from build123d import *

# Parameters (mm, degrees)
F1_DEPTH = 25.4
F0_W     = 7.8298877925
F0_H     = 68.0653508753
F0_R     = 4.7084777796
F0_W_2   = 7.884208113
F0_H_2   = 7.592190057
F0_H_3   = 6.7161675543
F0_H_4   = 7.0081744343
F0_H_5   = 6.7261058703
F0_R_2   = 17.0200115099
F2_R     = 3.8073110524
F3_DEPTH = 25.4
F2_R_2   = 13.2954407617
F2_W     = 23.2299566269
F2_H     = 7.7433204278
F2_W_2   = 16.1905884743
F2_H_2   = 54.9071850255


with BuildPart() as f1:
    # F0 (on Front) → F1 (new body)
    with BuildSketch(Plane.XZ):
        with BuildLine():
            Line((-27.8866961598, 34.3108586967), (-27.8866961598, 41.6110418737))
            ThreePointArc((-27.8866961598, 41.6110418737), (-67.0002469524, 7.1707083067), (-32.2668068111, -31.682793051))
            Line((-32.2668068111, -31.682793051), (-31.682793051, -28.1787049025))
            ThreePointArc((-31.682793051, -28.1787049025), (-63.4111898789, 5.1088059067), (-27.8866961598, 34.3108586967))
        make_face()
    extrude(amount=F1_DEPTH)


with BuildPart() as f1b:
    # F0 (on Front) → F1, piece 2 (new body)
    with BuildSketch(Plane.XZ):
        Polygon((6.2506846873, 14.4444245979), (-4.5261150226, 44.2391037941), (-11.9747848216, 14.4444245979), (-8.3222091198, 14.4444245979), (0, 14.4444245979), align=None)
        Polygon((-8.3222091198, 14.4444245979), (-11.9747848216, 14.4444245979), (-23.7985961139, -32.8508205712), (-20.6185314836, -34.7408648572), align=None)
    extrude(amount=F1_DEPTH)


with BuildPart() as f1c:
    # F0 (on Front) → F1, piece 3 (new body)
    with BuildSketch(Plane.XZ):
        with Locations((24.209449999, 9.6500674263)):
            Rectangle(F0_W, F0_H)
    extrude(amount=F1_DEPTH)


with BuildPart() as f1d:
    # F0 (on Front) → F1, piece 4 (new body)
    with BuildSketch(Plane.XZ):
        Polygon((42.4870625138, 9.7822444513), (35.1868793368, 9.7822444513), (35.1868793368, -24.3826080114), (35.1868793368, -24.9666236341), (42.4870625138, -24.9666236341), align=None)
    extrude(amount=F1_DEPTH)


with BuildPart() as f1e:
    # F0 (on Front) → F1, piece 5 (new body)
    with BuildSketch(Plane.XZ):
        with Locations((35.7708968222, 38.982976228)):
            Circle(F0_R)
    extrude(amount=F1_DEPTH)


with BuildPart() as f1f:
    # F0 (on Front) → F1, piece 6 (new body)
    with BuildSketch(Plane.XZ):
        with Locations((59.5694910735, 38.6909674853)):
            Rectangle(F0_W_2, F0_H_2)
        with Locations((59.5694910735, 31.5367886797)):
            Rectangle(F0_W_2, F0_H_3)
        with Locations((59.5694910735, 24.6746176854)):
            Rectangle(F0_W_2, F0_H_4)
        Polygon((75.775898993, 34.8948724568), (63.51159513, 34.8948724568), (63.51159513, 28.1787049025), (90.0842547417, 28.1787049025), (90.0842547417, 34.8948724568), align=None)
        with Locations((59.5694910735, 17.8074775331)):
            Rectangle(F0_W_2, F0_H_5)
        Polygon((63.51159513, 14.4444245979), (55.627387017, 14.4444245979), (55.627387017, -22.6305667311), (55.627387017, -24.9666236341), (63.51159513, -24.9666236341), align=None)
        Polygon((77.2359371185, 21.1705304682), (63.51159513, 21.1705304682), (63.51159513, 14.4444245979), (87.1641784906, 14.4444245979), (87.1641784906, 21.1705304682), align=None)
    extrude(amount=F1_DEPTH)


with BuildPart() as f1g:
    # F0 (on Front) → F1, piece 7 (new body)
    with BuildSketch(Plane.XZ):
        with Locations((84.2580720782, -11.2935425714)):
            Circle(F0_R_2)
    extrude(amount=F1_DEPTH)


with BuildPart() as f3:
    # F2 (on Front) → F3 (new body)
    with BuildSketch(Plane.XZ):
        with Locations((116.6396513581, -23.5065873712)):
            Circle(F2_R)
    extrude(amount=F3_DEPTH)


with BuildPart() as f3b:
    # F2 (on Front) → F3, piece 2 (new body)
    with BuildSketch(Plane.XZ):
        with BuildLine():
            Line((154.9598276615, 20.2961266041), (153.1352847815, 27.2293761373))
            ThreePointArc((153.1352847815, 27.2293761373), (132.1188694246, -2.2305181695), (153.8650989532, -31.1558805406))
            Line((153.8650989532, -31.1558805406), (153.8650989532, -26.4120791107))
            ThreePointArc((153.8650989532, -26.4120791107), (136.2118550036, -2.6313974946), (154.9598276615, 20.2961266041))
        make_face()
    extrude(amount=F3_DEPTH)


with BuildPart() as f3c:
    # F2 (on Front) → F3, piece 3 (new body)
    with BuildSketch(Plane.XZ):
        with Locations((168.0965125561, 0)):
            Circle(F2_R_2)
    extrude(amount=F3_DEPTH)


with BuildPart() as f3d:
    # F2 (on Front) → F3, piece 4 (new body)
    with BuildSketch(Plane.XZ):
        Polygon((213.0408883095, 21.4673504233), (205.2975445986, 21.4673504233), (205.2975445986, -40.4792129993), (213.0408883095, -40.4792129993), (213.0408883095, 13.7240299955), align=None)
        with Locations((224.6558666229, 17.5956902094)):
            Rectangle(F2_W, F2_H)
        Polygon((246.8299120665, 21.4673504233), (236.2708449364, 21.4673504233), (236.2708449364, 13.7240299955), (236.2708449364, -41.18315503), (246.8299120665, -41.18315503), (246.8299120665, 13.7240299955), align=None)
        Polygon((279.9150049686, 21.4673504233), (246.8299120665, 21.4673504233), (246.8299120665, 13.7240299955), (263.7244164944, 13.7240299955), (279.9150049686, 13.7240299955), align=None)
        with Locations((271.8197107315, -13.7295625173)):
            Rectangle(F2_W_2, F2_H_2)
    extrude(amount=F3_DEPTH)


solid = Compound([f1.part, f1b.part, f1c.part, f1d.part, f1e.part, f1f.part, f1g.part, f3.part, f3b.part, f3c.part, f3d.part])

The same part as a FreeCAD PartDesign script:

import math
import FreeCAD as App
import Part
import Sketcher
from FreeCAD import Vector
Q = App.Units.Quantity

doc = App.newDocument("Part")
params = doc.addObject("Spreadsheet::Sheet", "Params")
for row, (alias, value) in enumerate([
    ("pad1_length", "1 in"),
    ("pad2_length", "1 in"),
    ("pad3_length", "1 in"),
    ("pad4_length", "1 in"),
    ("pad5_length", "1 in"),
    ("pad6_length", "1 in"),
    ("pad7_length", "1 in"),
    ("pad8_length", "1 in"),
    ("pad9_length", "1 in"),
    ("pad10_length", "1 in"),
    ("pad11_length", "1 in"),
], start=1):
    params.set(f"A{row}", alias)
    params.set(f"B{row}", "=" + value)
    params.setAlias(f"B{row}", alias)

body = doc.addObject("PartDesign::Body", "Body")

sketch1 = doc.addObject("Sketcher::SketchObject", "Sketch")
body.addObject(sketch1)
sketch1.AttachmentSupport = (doc.XZ_Plane, [""])
sketch1.MapMode = "FlatFace"
sketch1.addGeometry([
    Part.LineSegment(Vector(-27.886696, 34.310859, 0), Vector(-27.886696, 41.611042, 0)),
    Part.ArcOfCircle(Part.Circle(Vector(-30.352294, 4.980591, 0), Vector(0, 0, 1), 36.713337), math.radians(86.149227), math.radians(267.010806)),
    Part.LineSegment(Vector(-32.266807, -31.682793, 0), Vector(-31.682793, -28.178705, 0)),
    Part.ArcOfCircle(Part.Circle(Vector(-32.082065, 3.205634, 0), Vector(0, 0, 1), 31.386878), math.radians(82.318493), math.radians(270.728878)),
], False)
sketch1.addConstraint([
    Sketcher.Constraint("Coincident", 0, 2, 1, 1),
    Sketcher.Constraint("Coincident", 1, 2, 2, 1),
    Sketcher.Constraint("Coincident", 2, 2, 3, 2),
    Sketcher.Constraint("Coincident", 3, 1, 0, 1),
    Sketcher.Constraint("Vertical", 0),
    Sketcher.Constraint("Radius", 3, Q("31.386878 mm")),
    Sketcher.Constraint("Radius", 1, Q("36.713337 mm")),
    Sketcher.Constraint("DistanceX", 2, 2, 1, 3, Q("1.330499 mm")),
    Sketcher.Constraint("DistanceY", 0, 1, 0, 2, Q("7.300183 mm")),
    Sketcher.Constraint("DistanceY", -1, 1, 1, 3, Q("4.980591 mm")),
    Sketcher.Constraint("DistanceY", -1, 1, 0, 2, Q("41.611042 mm")),
    Sketcher.Constraint("DistanceX", 3, 3, 1, 3, Q("1.729771 mm")),
    Sketcher.Constraint("DistanceX", 1, 2, 3, 3, Q("0.184742 mm")),
    Sketcher.Constraint("DistanceX", 1, 3, -1, 1, Q("30.352294 mm")),
])
pad1 = doc.addObject("PartDesign::Pad", "Pad")
body.addObject(pad1)
pad1.Profile = sketch1
pad1.setExpression("Length", "Params.pad1_length")
body2 = doc.addObject("PartDesign::Body", "Body001")

sketch2 = doc.addObject("Sketcher::SketchObject", "Sketch001")
body2.addObject(sketch2)
sketch2.AttachmentSupport = (doc.getObject("XZ_Plane001"), [""])
sketch2.MapMode = "FlatFace"
sketch2.addGeometry([
    Part.LineSegment(Vector(6.250685, 14.444425, 0), Vector(-4.526115, 44.239104, 0)),
    Part.LineSegment(Vector(-4.526115, 44.239104, 0), Vector(-11.974785, 14.444425, 0)),
    Part.LineSegment(Vector(-11.974785, 14.444425, 0), Vector(-23.798596, -32.850821, 0)),
    Part.LineSegment(Vector(-23.798596, -32.850821, 0), Vector(-20.618531, -34.740865, 0)),
    Part.LineSegment(Vector(-20.618531, -34.740865, 0), Vector(-8.322209, 14.444425, 0)),
    Part.LineSegment(Vector(-8.322209, 14.444425, 0), Vector(6.250685, 14.444425, 0)),
], False)
sketch2.addConstraint([
    Sketcher.Constraint("Coincident", 0, 2, 1, 1),
    Sketcher.Constraint("Coincident", 1, 2, 2, 1),
    Sketcher.Constraint("Coincident", 2, 2, 3, 1),
    Sketcher.Constraint("Coincident", 3, 2, 4, 1),
    Sketcher.Constraint("Coincident", 4, 2, 5, 1),
    Sketcher.Constraint("Coincident", 5, 2, 0, 1),
    Sketcher.Constraint("Horizontal", 5),
    Sketcher.Constraint("Parallel", 1, 2),
    Sketcher.Constraint("Parallel", 2, 4),
    Sketcher.Constraint("Horizontal", 1, 2, 4, 2),
    Sketcher.Constraint("DistanceX", 0, 2, 5, 2, Q("10.7768 mm")),
    Sketcher.Constraint("DistanceX", 5, 1, 5, 2, Q("14.572894 mm")),
    Sketcher.Constraint("DistanceY", 2, 2, -1, 1, Q("32.850821 mm")),
    Sketcher.Constraint("DistanceX", 3, 2, -1, 1, Q("20.618531 mm")),
    Sketcher.Constraint("DistanceX", 4, 2, -1, 1, Q("8.322209 mm")),
    Sketcher.Constraint("DistanceX", 1, 2, 0, 2, Q("7.44867 mm")),
    Sketcher.Constraint("DistanceY", 1, 2, 0, 2, Q("29.794679 mm")),
    Sketcher.Constraint("DistanceX", 2, 2, 1, 2, Q("11.823811 mm")),
])
pad2 = doc.addObject("PartDesign::Pad", "Pad001")
body2.addObject(pad2)
pad2.Profile = sketch2
pad2.setExpression("Length", "Params.pad2_length")
body3 = doc.addObject("PartDesign::Body", "Body002")

sketch3 = doc.addObject("Sketcher::SketchObject", "Sketch002")
body3.addObject(sketch3)
sketch3.AttachmentSupport = (doc.getObject("XZ_Plane002"), [""])
sketch3.MapMode = "FlatFace"
sketch3.addGeometry([
    Part.LineSegment(Vector(20.294506, 43.682743, 0), Vector(20.294506, -24.382608, 0)),
    Part.LineSegment(Vector(20.294506, -24.382608, 0), Vector(28.124394, -24.382608, 0)),
    Part.LineSegment(Vector(28.124394, -24.382608, 0), Vector(28.124394, 43.682743, 0)),
    Part.LineSegment(Vector(28.124394, 43.682743, 0), Vector(20.294506, 43.682743, 0)),
], False)
sketch3.addConstraint([
    Sketcher.Constraint("Coincident", 0, 2, 1, 1),
    Sketcher.Constraint("Coincident", 1, 2, 2, 1),
    Sketcher.Constraint("Coincident", 2, 2, 3, 1),
    Sketcher.Constraint("Coincident", 3, 2, 0, 1),
    Sketcher.Constraint("Vertical", 0),
    Sketcher.Constraint("Horizontal", 1),
    Sketcher.Constraint("Vertical", 2),
    Sketcher.Constraint("Horizontal", 3),
    Sketcher.Constraint("DistanceY", 0, 2, 0, 1, Q("68.065351 mm")),
    Sketcher.Constraint("DistanceX", 1, 1, 1, 2, Q("7.829888 mm")),
    Sketcher.Constraint("DistanceY", 0, 2, -1, 1, Q("24.382608 mm")),
    Sketcher.Constraint("DistanceX", -1, 1, 0, 2, Q("20.294506 mm")),
])
pad3 = doc.addObject("PartDesign::Pad", "Pad002")
body3.addObject(pad3)
pad3.Profile = sketch3
pad3.setExpression("Length", "Params.pad3_length")
body4 = doc.addObject("PartDesign::Body", "Body003")

sketch4 = doc.addObject("Sketcher::SketchObject", "Sketch003")
body4.addObject(sketch4)
sketch4.AttachmentSupport = (doc.getObject("XZ_Plane003"), [""])
sketch4.MapMode = "FlatFace"
sketch4.addGeometry([
    Part.LineSegment(Vector(42.487063, 9.782244, 0), Vector(35.186879, 9.782244, 0)),
    Part.LineSegment(Vector(35.186879, 9.782244, 0), Vector(35.186879, -24.966624, 0)),
    Part.LineSegment(Vector(35.186879, -24.966624, 0), Vector(42.487063, -24.966624, 0)),
    Part.LineSegment(Vector(42.487063, -24.966624, 0), Vector(42.487063, 9.782244, 0)),
], False)
sketch4.addConstraint([
    Sketcher.Constraint("Coincident", 0, 2, 1, 1),
    Sketcher.Constraint("Coincident", 1, 2, 2, 1),
    Sketcher.Constraint("Coincident", 2, 2, 3, 1),
    Sketcher.Constraint("Coincident", 3, 2, 0, 1),
    Sketcher.Constraint("Horizontal", 0),
    Sketcher.Constraint("Vertical", 1),
    Sketcher.Constraint("Horizontal", 2),
    Sketcher.Constraint("Vertical", 3),
    Sketcher.Constraint("DistanceY", 1, 2, 1, 1, Q("34.748868 mm")),
    Sketcher.Constraint("DistanceX", 0, 2, 0, 1, Q("7.300183 mm")),
    Sketcher.Constraint("DistanceX", -1, 1, 0, 2, Q("35.186879 mm")),
    Sketcher.Constraint("DistanceY", -1, 1, 0, 2, Q("9.782244 mm")),
])
pad4 = doc.addObject("PartDesign::Pad", "Pad003")
body4.addObject(pad4)
pad4.Profile = sketch4
pad4.setExpression("Length", "Params.pad4_length")
body5 = doc.addObject("PartDesign::Body", "Body004")

sketch5 = doc.addObject("Sketcher::SketchObject", "Sketch004")
body5.addObject(sketch5)
sketch5.AttachmentSupport = (doc.getObject("XZ_Plane004"), [""])
sketch5.MapMode = "FlatFace"
sketch5.addGeometry(Part.Circle(Vector(35.770897, 38.982976, 0), Vector(0, 0, 1), 4.708478), False)
sketch5.addConstraint([
    Sketcher.Constraint("Diameter", 0, Q("9.416956 mm")),
    Sketcher.Constraint("DistanceX", -1, 1, 0, 3, Q("35.770897 mm")),
    Sketcher.Constraint("DistanceY", -1, 1, 0, 3, Q("38.982976 mm")),
])
pad5 = doc.addObject("PartDesign::Pad", "Pad004")
body5.addObject(pad5)
pad5.Profile = sketch5
pad5.setExpression("Length", "Params.pad5_length")
body6 = doc.addObject("PartDesign::Body", "Body005")

sketch6 = doc.addObject("Sketcher::SketchObject", "Sketch005")
body6.addObject(sketch6)
sketch6.AttachmentSupport = (doc.getObject("XZ_Plane005"), [""])
sketch6.MapMode = "FlatFace"
sketch6.addGeometry([
    Part.LineSegment(Vector(55.627387, 42.487063, 0), Vector(55.627387, -24.966624, 0)),
    Part.LineSegment(Vector(55.627387, -24.966624, 0), Vector(63.511595, -24.966624, 0)),
    Part.LineSegment(Vector(63.511595, -24.966624, 0), Vector(63.511595, 14.444425, 0)),
    Part.LineSegment(Vector(63.511595, 14.444425, 0), Vector(87.164178, 14.444425, 0)),
    Part.LineSegment(Vector(87.164178, 14.444425, 0), Vector(87.164178, 21.17053, 0)),
    Part.LineSegment(Vector(87.164178, 21.17053, 0), Vector(63.511595, 21.17053, 0)),
    Part.LineSegment(Vector(63.511595, 21.17053, 0), Vector(63.511595, 28.178705, 0)),
    Part.LineSegment(Vector(63.511595, 28.178705, 0), Vector(90.084255, 28.178705, 0)),
    Part.LineSegment(Vector(90.084255, 28.178705, 0), Vector(90.084255, 34.894872, 0)),
    Part.LineSegment(Vector(90.084255, 34.894872, 0), Vector(63.511595, 34.894872, 0)),
    Part.LineSegment(Vector(63.511595, 34.894872, 0), Vector(63.511595, 42.487063, 0)),
    Part.LineSegment(Vector(63.511595, 42.487063, 0), Vector(55.627387, 42.487063, 0)),
], False)
sketch6.addConstraint([
    Sketcher.Constraint("Coincident", 0, 2, 1, 1),
    Sketcher.Constraint("Coincident", 1, 2, 2, 1),
    Sketcher.Constraint("Coincident", 2, 2, 3, 1),
    Sketcher.Constraint("Coincident", 3, 2, 4, 1),
    Sketcher.Constraint("Coincident", 4, 2, 5, 1),
    Sketcher.Constraint("Coincident", 5, 2, 6, 1),
    Sketcher.Constraint("Coincident", 6, 2, 7, 1),
    Sketcher.Constraint("Coincident", 7, 2, 8, 1),
    Sketcher.Constraint("Coincident", 8, 2, 9, 1),
    Sketcher.Constraint("Coincident", 9, 2, 10, 1),
    Sketcher.Constraint("Coincident", 10, 2, 11, 1),
    Sketcher.Constraint("Coincident", 11, 2, 0, 1),
    Sketcher.Constraint("Vertical", 0),
    Sketcher.Constraint("Horizontal", 1),
    Sketcher.Constraint("Vertical", 2),
    Sketcher.Constraint("Horizontal", 3),
    Sketcher.Constraint("Vertical", 4),
    Sketcher.Constraint("Horizontal", 5),
    Sketcher.Constraint("Vertical", 6),
    Sketcher.Constraint("Horizontal", 7),
    Sketcher.Constraint("Vertical", 8),
    Sketcher.Constraint("Horizontal", 9),
    Sketcher.Constraint("Vertical", 10),
    Sketcher.Constraint("Horizontal", 11),
    Sketcher.Constraint("Vertical", 2, 2, 5, 2),
    Sketcher.Constraint("Vertical", 6, 2, 9, 2),
    Sketcher.Constraint("DistanceX", 1, 1, 1, 2, Q("7.884208 mm")),
    Sketcher.Constraint("DistanceX", 7, 1, 7, 2, Q("26.57266 mm")),
    Sketcher.Constraint("DistanceY", 2, 1, 2, 2, Q("39.411048 mm")),
    Sketcher.Constraint("DistanceY", 10, 1, 10, 2, Q("7.59219 mm")),
    Sketcher.Constraint("DistanceX", 3, 1, 3, 2, Q("23.652583 mm")),
    Sketcher.Constraint("DistanceY", 0, 2, 0, 1, Q("67.453686 mm")),
    Sketcher.Constraint("DistanceY", 4, 1, 4, 2, Q("6.726106 mm")),
    Sketcher.Constraint("DistanceY", 6, 1, 6, 2, Q("7.008174 mm")),
    Sketcher.Constraint("DistanceX", -1, 1, 3, 2, Q("87.164178 mm")),
    Sketcher.Constraint("DistanceY", -1, 1, 4, 2, Q("21.17053 mm")),
])
pad6 = doc.addObject("PartDesign::Pad", "Pad005")
body6.addObject(pad6)
pad6.Profile = sketch6
pad6.setExpression("Length", "Params.pad6_length")
body7 = doc.addObject("PartDesign::Body", "Body006")

sketch7 = doc.addObject("Sketcher::SketchObject", "Sketch006")
body7.addObject(sketch7)
sketch7.AttachmentSupport = (doc.getObject("XZ_Plane006"), [""])
sketch7.MapMode = "FlatFace"
sketch7.addGeometry(Part.Circle(Vector(84.258072, -11.293543, 0), Vector(0, 0, 1), 17.020012), False)
sketch7.addConstraint([
    Sketcher.Constraint("Diameter", 0, Q("34.040023 mm")),
    Sketcher.Constraint("DistanceX", -1, 1, 0, 3, Q("84.258072 mm")),
    Sketcher.Constraint("DistanceY", 0, 3, -1, 1, Q("11.293543 mm")),
])
pad7 = doc.addObject("PartDesign::Pad", "Pad006")
body7.addObject(pad7)
pad7.Profile = sketch7
pad7.setExpression("Length", "Params.pad7_length")
body8 = doc.addObject("PartDesign::Body", "Body007")

sketch8 = doc.addObject("Sketcher::SketchObject", "Sketch007")
body8.addObject(sketch8)
sketch8.AttachmentSupport = (doc.getObject("XZ_Plane007"), [""])
sketch8.MapMode = "FlatFace"
sketch8.addGeometry(Part.Circle(Vector(116.639651, -23.506587, 0), Vector(0, 0, 1), 3.807311), False)
sketch8.addConstraint([
    Sketcher.Constraint("Diameter", 0, Q("7.614622 mm")),
    Sketcher.Constraint("DistanceX", -1, 1, 0, 3, Q("116.639651 mm")),
    Sketcher.Constraint("DistanceY", 0, 3, -1, 1, Q("23.506587 mm")),
])
pad8 = doc.addObject("PartDesign::Pad", "Pad007")
body8.addObject(pad8)
pad8.Profile = sketch8
pad8.setExpression("Length", "Params.pad8_length")
body9 = doc.addObject("PartDesign::Body", "Body008")

sketch9 = doc.addObject("Sketcher::SketchObject", "Sketch008")
body9.addObject(sketch9)
sketch9.AttachmentSupport = (doc.getObject("XZ_Plane008"), [""])
sketch9.MapMode = "FlatFace"
sketch9.addGeometry([
    Part.LineSegment(Vector(154.959828, 20.296127, 0), Vector(153.135285, 27.229376, 0)),
    Part.ArcOfCircle(Part.Circle(Vector(162.738362, -1.847775, 0), Vector(0, 0, 1), 30.621885), math.radians(108.276425), math.radians(253.155892)),
    Part.LineSegment(Vector(153.865099, -31.155881, 0), Vector(153.865099, -26.412079, 0)),
    Part.ArcOfCircle(Part.Circle(Vector(160.295563, -3.195862, 0), Vector(0, 0, 1), 24.090322), math.radians(102.796489), math.radians(254.51825)),
], False)
sketch9.addConstraint([
    Sketcher.Constraint("Coincident", 0, 2, 1, 1),
    Sketcher.Constraint("Coincident", 1, 2, 2, 1),
    Sketcher.Constraint("Coincident", 2, 2, 3, 2),
    Sketcher.Constraint("Coincident", 3, 1, 0, 1),
    Sketcher.Constraint("Vertical", 2),
    Sketcher.Constraint("Radius", 3, Q("24.090322 mm")),
    Sketcher.Constraint("DistanceY", 2, 1, 2, 2, Q("4.743801 mm")),
    Sketcher.Constraint("Radius", 1, Q("30.621885 mm")),
    Sketcher.Constraint("DistanceX", -1, 1, 1, 2, Q("153.865099 mm")),
    Sketcher.Constraint("DistanceX", 3, 3, 1, 3, Q("2.442799 mm")),
    Sketcher.Constraint("DistanceY", 1, 3, 3, 1, Q("22.143902 mm")),
    Sketcher.Constraint("DistanceY", 1, 2, -1, 1, Q("31.155881 mm")),
    Sketcher.Constraint("DistanceY", 1, 3, 0, 2, Q("29.077151 mm")),
    Sketcher.Constraint("DistanceY", 3, 3, 0, 2, Q("30.425238 mm")),
])
pad9 = doc.addObject("PartDesign::Pad", "Pad008")
body9.addObject(pad9)
pad9.Profile = sketch9
pad9.setExpression("Length", "Params.pad9_length")
body10 = doc.addObject("PartDesign::Body", "Body009")

sketch10 = doc.addObject("Sketcher::SketchObject", "Sketch009")
body10.addObject(sketch10)
sketch10.AttachmentSupport = (doc.getObject("XZ_Plane009"), [""])
sketch10.MapMode = "FlatFace"
sketch10.addGeometry(Part.Circle(Vector(168.096513, 0, 0), Vector(0, 0, 1), 13.295441), False)
sketch10.addConstraint([
    Sketcher.Constraint("PointOnObject", 0, 3, -1),
    Sketcher.Constraint("Diameter", 0, Q("26.590882 mm")),
    Sketcher.Constraint("DistanceX", -1, 1, 0, 3, Q("168.096513 mm")),
])
pad10 = doc.addObject("PartDesign::Pad", "Pad009")
body10.addObject(pad10)
pad10.Profile = sketch10
pad10.setExpression("Length", "Params.pad10_length")
body11 = doc.addObject("PartDesign::Body", "Body010")

sketch11 = doc.addObject("Sketcher::SketchObject", "Sketch010")
body11.addObject(sketch11)
sketch11.AttachmentSupport = (doc.getObject("XZ_Plane010"), [""])
sketch11.MapMode = "FlatFace"
sketch11.addGeometry([
    Part.LineSegment(Vector(205.297545, 21.46735, 0), Vector(205.297545, -40.479213, 0)),
    Part.LineSegment(Vector(205.297545, -40.479213, 0), Vector(213.040888, -40.479213, 0)),
    Part.LineSegment(Vector(213.040888, -40.479213, 0), Vector(213.040888, 13.72403, 0)),
    Part.LineSegment(Vector(213.040888, 13.72403, 0), Vector(236.270845, 13.72403, 0)),
    Part.LineSegment(Vector(236.270845, 13.72403, 0), Vector(236.270845, -41.183155, 0)),
    Part.LineSegment(Vector(236.270845, -41.183155, 0), Vector(246.829912, -41.183155, 0)),
    Part.LineSegment(Vector(246.829912, -41.183155, 0), Vector(246.829912, 13.72403, 0)),
    Part.LineSegment(Vector(246.829912, 13.72403, 0), Vector(263.724416, 13.72403, 0)),
    Part.LineSegment(Vector(263.724416, 13.72403, 0), Vector(263.724416, -41.183155, 0)),
    Part.LineSegment(Vector(263.724416, -41.183155, 0), Vector(279.915005, -41.183155, 0)),
    Part.LineSegment(Vector(279.915005, -41.183155, 0), Vector(279.915005, 21.46735, 0)),
    Part.LineSegment(Vector(279.915005, 21.46735, 0), Vector(205.297545, 21.46735, 0)),
], False)
sketch11.addConstraint([
    Sketcher.Constraint("Coincident", 0, 2, 1, 1),
    Sketcher.Constraint("Coincident", 1, 2, 2, 1),
    Sketcher.Constraint("Coincident", 2, 2, 3, 1),
    Sketcher.Constraint("Coincident", 3, 2, 4, 1),
    Sketcher.Constraint("Coincident", 4, 2, 5, 1),
    Sketcher.Constraint("Coincident", 5, 2, 6, 1),
    Sketcher.Constraint("Coincident", 6, 2, 7, 1),
    Sketcher.Constraint("Coincident", 7, 2, 8, 1),
    Sketcher.Constraint("Coincident", 8, 2, 9, 1),
    Sketcher.Constraint("Coincident", 9, 2, 10, 1),
    Sketcher.Constraint("Coincident", 10, 2, 11, 1),
    Sketcher.Constraint("Coincident", 11, 2, 0, 1),
    Sketcher.Constraint("Vertical", 0),
    Sketcher.Constraint("Horizontal", 1),
    Sketcher.Constraint("Vertical", 2),
    Sketcher.Constraint("Horizontal", 3),
    Sketcher.Constraint("Vertical", 4),
    Sketcher.Constraint("Horizontal", 5),
    Sketcher.Constraint("Vertical", 6),
    Sketcher.Constraint("Horizontal", 7),
    Sketcher.Constraint("Vertical", 8),
    Sketcher.Constraint("Horizontal", 9),
    Sketcher.Constraint("Vertical", 10),
    Sketcher.Constraint("Horizontal", 11),
    Sketcher.Constraint("Horizontal", 3, 2, 6, 2),
    Sketcher.Constraint("Horizontal", 5, 2, 8, 2),
    Sketcher.Constraint("DistanceY", 4, 2, 4, 1, Q("2.1617002 in")),
    Sketcher.Constraint("DistanceX", 9, 1, 9, 2, Q("16.190588 mm")),
    Sketcher.Constraint("DistanceX", 11, 2, 11, 1, Q("74.61746 mm")),
    Sketcher.Constraint("DistanceX", 0, 2, 3, 2, Q("30.9733 mm")),
    Sketcher.Constraint("DistanceX", 1, 1, 1, 2, Q("7.743344 mm")),
    Sketcher.Constraint("DistanceX", 5, 1, 5, 2, Q("10.559067 mm")),
    Sketcher.Constraint("DistanceY", 0, 2, 0, 1, Q("61.946563 mm")),
    Sketcher.Constraint("DistanceY", 2, 1, 2, 2, Q("54.203243 mm")),
    Sketcher.Constraint("DistanceX", -1, 1, 1, 2, Q("213.040888 mm")),
    Sketcher.Constraint("DistanceY", -1, 1, 2, 2, Q("13.72403 mm")),
])
pad11 = doc.addObject("PartDesign::Pad", "Pad010")
body11.addObject(pad11)
pad11.Profile = sketch11
pad11.setExpression("Length", "Params.pad11_length")

doc.recompute()
